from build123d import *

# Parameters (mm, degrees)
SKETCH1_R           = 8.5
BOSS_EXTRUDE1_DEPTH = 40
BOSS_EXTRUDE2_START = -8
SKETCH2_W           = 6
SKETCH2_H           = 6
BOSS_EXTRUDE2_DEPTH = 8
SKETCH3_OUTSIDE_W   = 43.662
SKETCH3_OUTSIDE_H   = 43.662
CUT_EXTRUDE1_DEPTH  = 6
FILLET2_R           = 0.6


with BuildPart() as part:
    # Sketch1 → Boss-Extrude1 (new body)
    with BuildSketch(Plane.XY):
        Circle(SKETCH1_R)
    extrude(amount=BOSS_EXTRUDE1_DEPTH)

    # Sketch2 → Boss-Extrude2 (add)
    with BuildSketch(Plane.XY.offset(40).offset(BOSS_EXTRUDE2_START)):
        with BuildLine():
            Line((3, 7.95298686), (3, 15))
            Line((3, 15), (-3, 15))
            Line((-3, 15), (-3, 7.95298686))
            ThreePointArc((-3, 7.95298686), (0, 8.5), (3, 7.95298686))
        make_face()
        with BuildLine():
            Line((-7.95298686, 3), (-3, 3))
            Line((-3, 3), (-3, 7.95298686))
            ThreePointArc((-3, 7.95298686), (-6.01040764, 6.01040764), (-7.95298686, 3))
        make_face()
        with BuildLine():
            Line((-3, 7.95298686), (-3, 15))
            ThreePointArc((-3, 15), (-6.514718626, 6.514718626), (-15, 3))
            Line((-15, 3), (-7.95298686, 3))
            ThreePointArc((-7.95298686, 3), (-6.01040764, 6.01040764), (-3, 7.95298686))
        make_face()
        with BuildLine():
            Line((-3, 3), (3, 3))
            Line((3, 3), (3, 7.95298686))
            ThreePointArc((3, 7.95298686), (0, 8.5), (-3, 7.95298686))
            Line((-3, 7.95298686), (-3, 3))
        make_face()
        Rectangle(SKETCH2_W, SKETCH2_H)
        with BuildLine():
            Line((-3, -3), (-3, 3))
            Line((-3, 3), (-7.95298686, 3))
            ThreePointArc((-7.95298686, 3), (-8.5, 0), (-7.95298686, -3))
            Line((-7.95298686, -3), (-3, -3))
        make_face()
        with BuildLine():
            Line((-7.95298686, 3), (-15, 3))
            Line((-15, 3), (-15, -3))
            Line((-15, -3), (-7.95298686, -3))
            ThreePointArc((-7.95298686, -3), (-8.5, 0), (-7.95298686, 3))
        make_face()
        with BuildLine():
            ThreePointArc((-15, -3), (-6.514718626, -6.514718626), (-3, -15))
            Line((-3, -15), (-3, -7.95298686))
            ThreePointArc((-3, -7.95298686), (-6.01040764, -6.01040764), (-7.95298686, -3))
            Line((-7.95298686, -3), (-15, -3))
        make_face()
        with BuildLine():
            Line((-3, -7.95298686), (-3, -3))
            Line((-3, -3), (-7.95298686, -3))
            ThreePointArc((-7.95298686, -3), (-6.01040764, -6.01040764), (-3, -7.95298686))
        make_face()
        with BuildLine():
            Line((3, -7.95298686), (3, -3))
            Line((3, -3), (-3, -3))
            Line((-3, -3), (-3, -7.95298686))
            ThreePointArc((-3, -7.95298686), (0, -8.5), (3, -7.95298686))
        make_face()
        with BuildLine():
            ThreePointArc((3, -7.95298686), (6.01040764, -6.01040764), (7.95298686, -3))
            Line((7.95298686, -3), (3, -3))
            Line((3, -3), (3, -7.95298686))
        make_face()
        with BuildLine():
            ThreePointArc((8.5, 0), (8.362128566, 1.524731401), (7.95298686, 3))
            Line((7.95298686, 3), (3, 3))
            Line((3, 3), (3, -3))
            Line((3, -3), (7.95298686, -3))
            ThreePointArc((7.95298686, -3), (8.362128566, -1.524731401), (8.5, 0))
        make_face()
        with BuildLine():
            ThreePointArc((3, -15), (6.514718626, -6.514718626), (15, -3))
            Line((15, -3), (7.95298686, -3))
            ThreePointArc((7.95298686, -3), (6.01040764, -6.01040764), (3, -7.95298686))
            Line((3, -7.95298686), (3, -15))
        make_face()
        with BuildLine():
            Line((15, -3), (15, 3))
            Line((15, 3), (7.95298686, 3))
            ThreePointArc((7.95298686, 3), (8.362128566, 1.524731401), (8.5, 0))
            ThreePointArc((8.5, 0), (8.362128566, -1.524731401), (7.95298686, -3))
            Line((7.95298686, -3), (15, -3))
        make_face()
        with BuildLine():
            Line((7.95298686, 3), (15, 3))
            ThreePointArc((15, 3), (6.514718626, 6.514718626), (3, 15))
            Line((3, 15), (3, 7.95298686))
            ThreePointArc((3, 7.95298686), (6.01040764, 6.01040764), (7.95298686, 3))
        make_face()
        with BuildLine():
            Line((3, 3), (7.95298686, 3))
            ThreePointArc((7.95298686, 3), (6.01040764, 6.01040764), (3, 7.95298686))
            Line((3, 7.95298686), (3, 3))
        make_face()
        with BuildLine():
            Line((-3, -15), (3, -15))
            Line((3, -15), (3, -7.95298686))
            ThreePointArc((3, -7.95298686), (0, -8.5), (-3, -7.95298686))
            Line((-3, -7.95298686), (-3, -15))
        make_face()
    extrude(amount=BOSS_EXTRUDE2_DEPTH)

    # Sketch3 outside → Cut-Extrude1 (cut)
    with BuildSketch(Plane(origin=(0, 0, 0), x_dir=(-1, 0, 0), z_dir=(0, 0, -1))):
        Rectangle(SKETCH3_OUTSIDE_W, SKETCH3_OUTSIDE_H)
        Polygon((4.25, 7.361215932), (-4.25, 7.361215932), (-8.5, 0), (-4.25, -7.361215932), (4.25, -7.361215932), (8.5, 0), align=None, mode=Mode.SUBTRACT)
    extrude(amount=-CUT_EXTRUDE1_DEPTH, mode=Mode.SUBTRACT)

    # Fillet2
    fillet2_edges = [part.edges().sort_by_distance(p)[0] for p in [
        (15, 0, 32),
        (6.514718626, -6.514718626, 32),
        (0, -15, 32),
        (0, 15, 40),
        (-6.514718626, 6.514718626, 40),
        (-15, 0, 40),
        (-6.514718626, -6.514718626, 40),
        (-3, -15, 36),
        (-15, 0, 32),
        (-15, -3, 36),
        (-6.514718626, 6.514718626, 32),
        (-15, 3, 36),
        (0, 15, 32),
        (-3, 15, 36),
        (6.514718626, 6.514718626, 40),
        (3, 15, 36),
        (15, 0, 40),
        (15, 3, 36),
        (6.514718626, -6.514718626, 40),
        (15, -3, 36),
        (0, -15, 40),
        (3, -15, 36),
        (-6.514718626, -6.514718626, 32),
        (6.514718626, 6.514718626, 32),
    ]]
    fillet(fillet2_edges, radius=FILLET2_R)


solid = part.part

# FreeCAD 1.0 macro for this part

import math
import FreeCAD as App
import Part
import Sketcher

V = App.Vector
Q = App.Units.Quantity


def edges_at(feature, points):
    """Names of the edges that pass closest to the given points."""
    edges = feature.Shape.Edges
    near = lambda p: min(range(len(edges)), key=lambda i: edges[i].distToShape(Part.Vertex(*p))[0])
    return sorted({f"Edge{near(p) + 1}" for p in points})


def add_polygon(sketch, points):
    """Adds a closed chain of lines whose ends are joined by coincident constraints."""
    first, n = sketch.GeometryCount, len(points)
    for a, b in zip(points, points[1:] + points[:1]):
        sketch.addGeometry(Part.LineSegment(App.Vector(*a, 0), App.Vector(*b, 0)), False)
    for i in range(n):
        sketch.addConstraint(Sketcher.Constraint("Coincident", first + i, 2, first + (i + 1) % n, 1))

doc = App.newDocument("Part")
params = doc.addObject("Spreadsheet::Sheet", "Params")
for row, (alias, value) in enumerate([
    ("sketch1_diameter", "17 mm"),
    ("pad1_length", "40 mm"),
    ("sketch2_radius", "12 mm"),
    ("sketch2_width", "6 mm"),
    ("pad2_length", "8 mm"),
    ("sketch3_width", "8.5 mm"),
    ("pocket1_length", "6 mm"),
    ("fillet_radius", "0.6 mm"),
], start=1):
    params.set(f"A{row}", alias)
    params.set(f"B{row}", "=" + value)
    params.setAlias(f"B{row}", alias)

body = doc.addObject("PartDesign::Body", "Body")

sketch1 = body.newObject("Sketcher::SketchObject", "Sketch")
sketch1.AttachmentSupport = (doc.getObject("XY_Plane"), [""])
sketch1.MapMode = "FlatFace"
sketch1.addGeometry(Part.Circle(V(0, 0, 0), V(0, 0, 1), 8), False)
sketch1.addConstraint(Sketcher.Constraint("Coincident", 0, 3, -1, 1))
sketch1.addConstraint(Sketcher.Constraint("Diameter", 0, 17.0))
sketch1.setExpression("Constraints[1]", "Params.sketch1_diameter")
pad1 = body.newObject("PartDesign::Pad", "Pad")
pad1.Profile = sketch1
pad1.setExpression("Length", "Params.pad1_length")

sketch2 = body.newObject("Sketcher::SketchObject", "Sketch001")
sketch2.AttachmentSupport = (doc.getObject("XY_Plane"), [""])
sketch2.MapMode = "FlatFace"
sketch2.AttachmentOffset = App.Placement(V(0, 0, 32), App.Rotation())
sketch2.addGeometry(Part.LineSegment(V(3, 15, 0), V(-3, 15, 0)), False)
sketch2.addGeometry(Part.ArcOfCircle(Part.Circle(V(-15, 15, 0), V(0, 0, 1), 12), math.radians(-90), math.radians(0)), False)
sketch2.addGeometry(Part.LineSegment(V(-15, 3, 0), V(-15, -3, 0)), False)
sketch2.addGeometry(Part.ArcOfCircle(Part.Circle(V(-15, -15, 0), V(0, 0, 1), 12), math.radians(0), math.radians(90)), False)
sketch2.addGeometry(Part.LineSegment(V(-3, -15, 0), V(3, -15, 0)), False)
sketch2.addGeometry(Part.ArcOfCircle(Part.Circle(V(15, -15, 0), V(0, 0, 1), 12), math.radians(90), math.radians(180)), False)
sketch2.addGeometry(Part.LineSegment(V(15, -3, 0), V(15, 3, 0)), False)
sketch2.addGeometry(Part.ArcOfCircle(Part.Circle(V(15, 15, 0), V(0, 0, 1), 12), math.radians(-180), math.radians(-90)), False)
sketch2.addConstraint(Sketcher.Constraint("Coincident", 0, 2, 1, 2))
sketch2.addConstraint(Sketcher.Constraint("Coincident", 1, 1, 2, 1))
sketch2.addConstraint(Sketcher.Constraint("Coincident", 2, 2, 3, 2))
sketch2.addConstraint(Sketcher.Constraint("Coincident", 3, 1, 4, 1))
sketch2.addConstraint(Sketcher.Constraint("Coincident", 4, 2, 5, 2))
sketch2.addConstraint(Sketcher.Constraint("Coincident", 5, 1, 6, 1))
sketch2.addConstraint(Sketcher.Constraint("Coincident", 6, 2, 7, 2))
sketch2.addConstraint(Sketcher.Constraint("Coincident", 7, 1, 0, 1))
sketch2.addConstraint(Sketcher.Constraint("Horizontal", 0))
sketch2.addConstraint(Sketcher.Constraint("Vertical", 2))
sketch2.addConstraint(Sketcher.Constraint("Horizontal", 4))
sketch2.addConstraint(Sketcher.Constraint("Vertical", 6))
sketch2.addConstraint(Sketcher.Constraint("Equal", 1, 3))
sketch2.addConstraint(Sketcher.Constraint("Equal", 3, 5))
sketch2.addConstraint(Sketcher.Constraint("Equal", 5, 7))
sketch2.addConstraint(Sketcher.Constraint("Symmetric", 1, 3, 5, 3, -1, 1))
sketch2.addConstraint(Sketcher.Constraint("Symmetric", 3, 3, 7, 3, -1, 1))
sketch2.addConstraint(Sketcher.Constraint("Symmetric", 3, 3, 5, 3, -2))
sketch2.addConstraint(Sketcher.Constraint("Horizontal", 7, 3, 0, 2))
sketch2.addConstraint(Sketcher.Constraint("Horizontal", 5, 3, 3, 1))
sketch2.addConstraint(Sketcher.Constraint("Vertical", 3, 3, 1, 1))
sketch2.addConstraint(Sketcher.Constraint("Vertical", 7, 3, 5, 1))
sketch2.addConstraint(Sketcher.Constraint("Equal", 4, 2))
sketch2.addConstraint(Sketcher.Constraint("Radius", 1, 12.0))
sketch2.addConstraint(Sketcher.Constraint("DistanceX", 0, 2, 0, 1, 6.0))
sketch2.setExpression("Constraints[23]", "Params.sketch2_radius")
sketch2.setExpression("Constraints[24]", "Params.sketch2_width")
pad2 = body.newObject("PartDesign::Pad", "Pad001")
pad2.Profile = sketch2
pad2.setExpression("Length", "Params.pad2_length")

sketch3 = body.newObject("Sketcher::SketchObject", "Sketch002")
sketch3.AttachmentSupport = (doc.getObject("XY_Plane"), [""])
sketch3.MapMode = "FlatFace"
add_polygon(sketch3, [(22, 22), (22, -22), (-22, -22), (-22, 22)])
add_polygon(sketch3, [(4, 7), (-4, 7), (-8, 0), (-4, -7), (4, -7), (8, 0)])
sketch3.addConstraint(Sketcher.Constraint("Vertical", 0))
sketch3.addConstraint(Sketcher.Constraint("Horizontal", 1))
sketch3.addConstraint(Sketcher.Constraint("Vertical", 2))
sketch3.addConstraint(Sketcher.Constraint("Horizontal", 3))
sketch3.addConstraint(Sketcher.Constraint("Horizontal", 4))
sketch3.addConstraint(Sketcher.Constraint("Horizontal", 7))
sketch3.addConstraint(Sketcher.Constraint("Symmetric", 0, 2, 2, 2, -1, 1))
sketch3.addConstraint(Sketcher.Constraint("Symmetric", 4, 2, 7, 2, -1, 1))
sketch3.addConstraint(Sketcher.Constraint("Symmetric", 5, 2, 8, 2, -1, 1))
sketch3.addConstraint(Sketcher.Constraint("PointOnObject", 5, 2, -1))
sketch3.addConstraint(Sketcher.Constraint("Parallel", 6, 9))
sketch3.addConstraint(Sketcher.Constraint("Vertical", 4, 2, 6, 2))
sketch3.addConstraint(Sketcher.Constraint("Equal", 3, 0))
sketch3.addConstraint(Sketcher.Constraint("Angle", 5, Q("-120 deg")))
sketch3.addConstraint(Sketcher.Constraint("DistanceX", 4, 2, 4, 1, 8.5))
sketch3.addConstraint(Sketcher.Constraint("DistanceX", 5, 2, 8, 2, 17.0))
sketch3.addConstraint(Sketcher.Constraint("DistanceX", 1, 2, 1, 1, 43.662))
sketch3.setExpression("Constraints[24]", "Params.sketch3_width")
pocket1 = body.newObject("PartDesign::Pocket", "Pocket")
pocket1.Profile = sketch3
pocket1.setExpression("Length", "Params.pocket1_length")
pocket1.Reversed = True
doc.recompute()

fillet = body.newObject("PartDesign::Fillet", "Fillet")
fillet.Base = (pocket1, edges_at(pocket1, [
    (15, 0, 32),
    (6.515, -6.515, 32),
    (0, -15, 32),
    (0, 15, 40),
    (-6.515, 6.515, 40),
    (-15, 0, 40),
    (-6.515, -6.515, 40),
    (-3, -15, 36),
    (-15, 0, 32),
    (-15, -3, 36),
    (-6.515, 6.515, 32),
    (-15, 3, 36),
    (0, 15, 32),
    (-3, 15, 36),
    (6.515, 6.515, 40),
    (3, 15, 36),
    (15, 0, 40),
    (15, 3, 36),
    (6.515, -6.515, 40),
    (15, -3, 36),
    (0, -15, 40),
    (3, -15, 36),
    (-6.515, -6.515, 32),
    (6.515, 6.515, 32),
]))
fillet.setExpression("Radius", "Params.fillet_radius")

doc.recompute()
